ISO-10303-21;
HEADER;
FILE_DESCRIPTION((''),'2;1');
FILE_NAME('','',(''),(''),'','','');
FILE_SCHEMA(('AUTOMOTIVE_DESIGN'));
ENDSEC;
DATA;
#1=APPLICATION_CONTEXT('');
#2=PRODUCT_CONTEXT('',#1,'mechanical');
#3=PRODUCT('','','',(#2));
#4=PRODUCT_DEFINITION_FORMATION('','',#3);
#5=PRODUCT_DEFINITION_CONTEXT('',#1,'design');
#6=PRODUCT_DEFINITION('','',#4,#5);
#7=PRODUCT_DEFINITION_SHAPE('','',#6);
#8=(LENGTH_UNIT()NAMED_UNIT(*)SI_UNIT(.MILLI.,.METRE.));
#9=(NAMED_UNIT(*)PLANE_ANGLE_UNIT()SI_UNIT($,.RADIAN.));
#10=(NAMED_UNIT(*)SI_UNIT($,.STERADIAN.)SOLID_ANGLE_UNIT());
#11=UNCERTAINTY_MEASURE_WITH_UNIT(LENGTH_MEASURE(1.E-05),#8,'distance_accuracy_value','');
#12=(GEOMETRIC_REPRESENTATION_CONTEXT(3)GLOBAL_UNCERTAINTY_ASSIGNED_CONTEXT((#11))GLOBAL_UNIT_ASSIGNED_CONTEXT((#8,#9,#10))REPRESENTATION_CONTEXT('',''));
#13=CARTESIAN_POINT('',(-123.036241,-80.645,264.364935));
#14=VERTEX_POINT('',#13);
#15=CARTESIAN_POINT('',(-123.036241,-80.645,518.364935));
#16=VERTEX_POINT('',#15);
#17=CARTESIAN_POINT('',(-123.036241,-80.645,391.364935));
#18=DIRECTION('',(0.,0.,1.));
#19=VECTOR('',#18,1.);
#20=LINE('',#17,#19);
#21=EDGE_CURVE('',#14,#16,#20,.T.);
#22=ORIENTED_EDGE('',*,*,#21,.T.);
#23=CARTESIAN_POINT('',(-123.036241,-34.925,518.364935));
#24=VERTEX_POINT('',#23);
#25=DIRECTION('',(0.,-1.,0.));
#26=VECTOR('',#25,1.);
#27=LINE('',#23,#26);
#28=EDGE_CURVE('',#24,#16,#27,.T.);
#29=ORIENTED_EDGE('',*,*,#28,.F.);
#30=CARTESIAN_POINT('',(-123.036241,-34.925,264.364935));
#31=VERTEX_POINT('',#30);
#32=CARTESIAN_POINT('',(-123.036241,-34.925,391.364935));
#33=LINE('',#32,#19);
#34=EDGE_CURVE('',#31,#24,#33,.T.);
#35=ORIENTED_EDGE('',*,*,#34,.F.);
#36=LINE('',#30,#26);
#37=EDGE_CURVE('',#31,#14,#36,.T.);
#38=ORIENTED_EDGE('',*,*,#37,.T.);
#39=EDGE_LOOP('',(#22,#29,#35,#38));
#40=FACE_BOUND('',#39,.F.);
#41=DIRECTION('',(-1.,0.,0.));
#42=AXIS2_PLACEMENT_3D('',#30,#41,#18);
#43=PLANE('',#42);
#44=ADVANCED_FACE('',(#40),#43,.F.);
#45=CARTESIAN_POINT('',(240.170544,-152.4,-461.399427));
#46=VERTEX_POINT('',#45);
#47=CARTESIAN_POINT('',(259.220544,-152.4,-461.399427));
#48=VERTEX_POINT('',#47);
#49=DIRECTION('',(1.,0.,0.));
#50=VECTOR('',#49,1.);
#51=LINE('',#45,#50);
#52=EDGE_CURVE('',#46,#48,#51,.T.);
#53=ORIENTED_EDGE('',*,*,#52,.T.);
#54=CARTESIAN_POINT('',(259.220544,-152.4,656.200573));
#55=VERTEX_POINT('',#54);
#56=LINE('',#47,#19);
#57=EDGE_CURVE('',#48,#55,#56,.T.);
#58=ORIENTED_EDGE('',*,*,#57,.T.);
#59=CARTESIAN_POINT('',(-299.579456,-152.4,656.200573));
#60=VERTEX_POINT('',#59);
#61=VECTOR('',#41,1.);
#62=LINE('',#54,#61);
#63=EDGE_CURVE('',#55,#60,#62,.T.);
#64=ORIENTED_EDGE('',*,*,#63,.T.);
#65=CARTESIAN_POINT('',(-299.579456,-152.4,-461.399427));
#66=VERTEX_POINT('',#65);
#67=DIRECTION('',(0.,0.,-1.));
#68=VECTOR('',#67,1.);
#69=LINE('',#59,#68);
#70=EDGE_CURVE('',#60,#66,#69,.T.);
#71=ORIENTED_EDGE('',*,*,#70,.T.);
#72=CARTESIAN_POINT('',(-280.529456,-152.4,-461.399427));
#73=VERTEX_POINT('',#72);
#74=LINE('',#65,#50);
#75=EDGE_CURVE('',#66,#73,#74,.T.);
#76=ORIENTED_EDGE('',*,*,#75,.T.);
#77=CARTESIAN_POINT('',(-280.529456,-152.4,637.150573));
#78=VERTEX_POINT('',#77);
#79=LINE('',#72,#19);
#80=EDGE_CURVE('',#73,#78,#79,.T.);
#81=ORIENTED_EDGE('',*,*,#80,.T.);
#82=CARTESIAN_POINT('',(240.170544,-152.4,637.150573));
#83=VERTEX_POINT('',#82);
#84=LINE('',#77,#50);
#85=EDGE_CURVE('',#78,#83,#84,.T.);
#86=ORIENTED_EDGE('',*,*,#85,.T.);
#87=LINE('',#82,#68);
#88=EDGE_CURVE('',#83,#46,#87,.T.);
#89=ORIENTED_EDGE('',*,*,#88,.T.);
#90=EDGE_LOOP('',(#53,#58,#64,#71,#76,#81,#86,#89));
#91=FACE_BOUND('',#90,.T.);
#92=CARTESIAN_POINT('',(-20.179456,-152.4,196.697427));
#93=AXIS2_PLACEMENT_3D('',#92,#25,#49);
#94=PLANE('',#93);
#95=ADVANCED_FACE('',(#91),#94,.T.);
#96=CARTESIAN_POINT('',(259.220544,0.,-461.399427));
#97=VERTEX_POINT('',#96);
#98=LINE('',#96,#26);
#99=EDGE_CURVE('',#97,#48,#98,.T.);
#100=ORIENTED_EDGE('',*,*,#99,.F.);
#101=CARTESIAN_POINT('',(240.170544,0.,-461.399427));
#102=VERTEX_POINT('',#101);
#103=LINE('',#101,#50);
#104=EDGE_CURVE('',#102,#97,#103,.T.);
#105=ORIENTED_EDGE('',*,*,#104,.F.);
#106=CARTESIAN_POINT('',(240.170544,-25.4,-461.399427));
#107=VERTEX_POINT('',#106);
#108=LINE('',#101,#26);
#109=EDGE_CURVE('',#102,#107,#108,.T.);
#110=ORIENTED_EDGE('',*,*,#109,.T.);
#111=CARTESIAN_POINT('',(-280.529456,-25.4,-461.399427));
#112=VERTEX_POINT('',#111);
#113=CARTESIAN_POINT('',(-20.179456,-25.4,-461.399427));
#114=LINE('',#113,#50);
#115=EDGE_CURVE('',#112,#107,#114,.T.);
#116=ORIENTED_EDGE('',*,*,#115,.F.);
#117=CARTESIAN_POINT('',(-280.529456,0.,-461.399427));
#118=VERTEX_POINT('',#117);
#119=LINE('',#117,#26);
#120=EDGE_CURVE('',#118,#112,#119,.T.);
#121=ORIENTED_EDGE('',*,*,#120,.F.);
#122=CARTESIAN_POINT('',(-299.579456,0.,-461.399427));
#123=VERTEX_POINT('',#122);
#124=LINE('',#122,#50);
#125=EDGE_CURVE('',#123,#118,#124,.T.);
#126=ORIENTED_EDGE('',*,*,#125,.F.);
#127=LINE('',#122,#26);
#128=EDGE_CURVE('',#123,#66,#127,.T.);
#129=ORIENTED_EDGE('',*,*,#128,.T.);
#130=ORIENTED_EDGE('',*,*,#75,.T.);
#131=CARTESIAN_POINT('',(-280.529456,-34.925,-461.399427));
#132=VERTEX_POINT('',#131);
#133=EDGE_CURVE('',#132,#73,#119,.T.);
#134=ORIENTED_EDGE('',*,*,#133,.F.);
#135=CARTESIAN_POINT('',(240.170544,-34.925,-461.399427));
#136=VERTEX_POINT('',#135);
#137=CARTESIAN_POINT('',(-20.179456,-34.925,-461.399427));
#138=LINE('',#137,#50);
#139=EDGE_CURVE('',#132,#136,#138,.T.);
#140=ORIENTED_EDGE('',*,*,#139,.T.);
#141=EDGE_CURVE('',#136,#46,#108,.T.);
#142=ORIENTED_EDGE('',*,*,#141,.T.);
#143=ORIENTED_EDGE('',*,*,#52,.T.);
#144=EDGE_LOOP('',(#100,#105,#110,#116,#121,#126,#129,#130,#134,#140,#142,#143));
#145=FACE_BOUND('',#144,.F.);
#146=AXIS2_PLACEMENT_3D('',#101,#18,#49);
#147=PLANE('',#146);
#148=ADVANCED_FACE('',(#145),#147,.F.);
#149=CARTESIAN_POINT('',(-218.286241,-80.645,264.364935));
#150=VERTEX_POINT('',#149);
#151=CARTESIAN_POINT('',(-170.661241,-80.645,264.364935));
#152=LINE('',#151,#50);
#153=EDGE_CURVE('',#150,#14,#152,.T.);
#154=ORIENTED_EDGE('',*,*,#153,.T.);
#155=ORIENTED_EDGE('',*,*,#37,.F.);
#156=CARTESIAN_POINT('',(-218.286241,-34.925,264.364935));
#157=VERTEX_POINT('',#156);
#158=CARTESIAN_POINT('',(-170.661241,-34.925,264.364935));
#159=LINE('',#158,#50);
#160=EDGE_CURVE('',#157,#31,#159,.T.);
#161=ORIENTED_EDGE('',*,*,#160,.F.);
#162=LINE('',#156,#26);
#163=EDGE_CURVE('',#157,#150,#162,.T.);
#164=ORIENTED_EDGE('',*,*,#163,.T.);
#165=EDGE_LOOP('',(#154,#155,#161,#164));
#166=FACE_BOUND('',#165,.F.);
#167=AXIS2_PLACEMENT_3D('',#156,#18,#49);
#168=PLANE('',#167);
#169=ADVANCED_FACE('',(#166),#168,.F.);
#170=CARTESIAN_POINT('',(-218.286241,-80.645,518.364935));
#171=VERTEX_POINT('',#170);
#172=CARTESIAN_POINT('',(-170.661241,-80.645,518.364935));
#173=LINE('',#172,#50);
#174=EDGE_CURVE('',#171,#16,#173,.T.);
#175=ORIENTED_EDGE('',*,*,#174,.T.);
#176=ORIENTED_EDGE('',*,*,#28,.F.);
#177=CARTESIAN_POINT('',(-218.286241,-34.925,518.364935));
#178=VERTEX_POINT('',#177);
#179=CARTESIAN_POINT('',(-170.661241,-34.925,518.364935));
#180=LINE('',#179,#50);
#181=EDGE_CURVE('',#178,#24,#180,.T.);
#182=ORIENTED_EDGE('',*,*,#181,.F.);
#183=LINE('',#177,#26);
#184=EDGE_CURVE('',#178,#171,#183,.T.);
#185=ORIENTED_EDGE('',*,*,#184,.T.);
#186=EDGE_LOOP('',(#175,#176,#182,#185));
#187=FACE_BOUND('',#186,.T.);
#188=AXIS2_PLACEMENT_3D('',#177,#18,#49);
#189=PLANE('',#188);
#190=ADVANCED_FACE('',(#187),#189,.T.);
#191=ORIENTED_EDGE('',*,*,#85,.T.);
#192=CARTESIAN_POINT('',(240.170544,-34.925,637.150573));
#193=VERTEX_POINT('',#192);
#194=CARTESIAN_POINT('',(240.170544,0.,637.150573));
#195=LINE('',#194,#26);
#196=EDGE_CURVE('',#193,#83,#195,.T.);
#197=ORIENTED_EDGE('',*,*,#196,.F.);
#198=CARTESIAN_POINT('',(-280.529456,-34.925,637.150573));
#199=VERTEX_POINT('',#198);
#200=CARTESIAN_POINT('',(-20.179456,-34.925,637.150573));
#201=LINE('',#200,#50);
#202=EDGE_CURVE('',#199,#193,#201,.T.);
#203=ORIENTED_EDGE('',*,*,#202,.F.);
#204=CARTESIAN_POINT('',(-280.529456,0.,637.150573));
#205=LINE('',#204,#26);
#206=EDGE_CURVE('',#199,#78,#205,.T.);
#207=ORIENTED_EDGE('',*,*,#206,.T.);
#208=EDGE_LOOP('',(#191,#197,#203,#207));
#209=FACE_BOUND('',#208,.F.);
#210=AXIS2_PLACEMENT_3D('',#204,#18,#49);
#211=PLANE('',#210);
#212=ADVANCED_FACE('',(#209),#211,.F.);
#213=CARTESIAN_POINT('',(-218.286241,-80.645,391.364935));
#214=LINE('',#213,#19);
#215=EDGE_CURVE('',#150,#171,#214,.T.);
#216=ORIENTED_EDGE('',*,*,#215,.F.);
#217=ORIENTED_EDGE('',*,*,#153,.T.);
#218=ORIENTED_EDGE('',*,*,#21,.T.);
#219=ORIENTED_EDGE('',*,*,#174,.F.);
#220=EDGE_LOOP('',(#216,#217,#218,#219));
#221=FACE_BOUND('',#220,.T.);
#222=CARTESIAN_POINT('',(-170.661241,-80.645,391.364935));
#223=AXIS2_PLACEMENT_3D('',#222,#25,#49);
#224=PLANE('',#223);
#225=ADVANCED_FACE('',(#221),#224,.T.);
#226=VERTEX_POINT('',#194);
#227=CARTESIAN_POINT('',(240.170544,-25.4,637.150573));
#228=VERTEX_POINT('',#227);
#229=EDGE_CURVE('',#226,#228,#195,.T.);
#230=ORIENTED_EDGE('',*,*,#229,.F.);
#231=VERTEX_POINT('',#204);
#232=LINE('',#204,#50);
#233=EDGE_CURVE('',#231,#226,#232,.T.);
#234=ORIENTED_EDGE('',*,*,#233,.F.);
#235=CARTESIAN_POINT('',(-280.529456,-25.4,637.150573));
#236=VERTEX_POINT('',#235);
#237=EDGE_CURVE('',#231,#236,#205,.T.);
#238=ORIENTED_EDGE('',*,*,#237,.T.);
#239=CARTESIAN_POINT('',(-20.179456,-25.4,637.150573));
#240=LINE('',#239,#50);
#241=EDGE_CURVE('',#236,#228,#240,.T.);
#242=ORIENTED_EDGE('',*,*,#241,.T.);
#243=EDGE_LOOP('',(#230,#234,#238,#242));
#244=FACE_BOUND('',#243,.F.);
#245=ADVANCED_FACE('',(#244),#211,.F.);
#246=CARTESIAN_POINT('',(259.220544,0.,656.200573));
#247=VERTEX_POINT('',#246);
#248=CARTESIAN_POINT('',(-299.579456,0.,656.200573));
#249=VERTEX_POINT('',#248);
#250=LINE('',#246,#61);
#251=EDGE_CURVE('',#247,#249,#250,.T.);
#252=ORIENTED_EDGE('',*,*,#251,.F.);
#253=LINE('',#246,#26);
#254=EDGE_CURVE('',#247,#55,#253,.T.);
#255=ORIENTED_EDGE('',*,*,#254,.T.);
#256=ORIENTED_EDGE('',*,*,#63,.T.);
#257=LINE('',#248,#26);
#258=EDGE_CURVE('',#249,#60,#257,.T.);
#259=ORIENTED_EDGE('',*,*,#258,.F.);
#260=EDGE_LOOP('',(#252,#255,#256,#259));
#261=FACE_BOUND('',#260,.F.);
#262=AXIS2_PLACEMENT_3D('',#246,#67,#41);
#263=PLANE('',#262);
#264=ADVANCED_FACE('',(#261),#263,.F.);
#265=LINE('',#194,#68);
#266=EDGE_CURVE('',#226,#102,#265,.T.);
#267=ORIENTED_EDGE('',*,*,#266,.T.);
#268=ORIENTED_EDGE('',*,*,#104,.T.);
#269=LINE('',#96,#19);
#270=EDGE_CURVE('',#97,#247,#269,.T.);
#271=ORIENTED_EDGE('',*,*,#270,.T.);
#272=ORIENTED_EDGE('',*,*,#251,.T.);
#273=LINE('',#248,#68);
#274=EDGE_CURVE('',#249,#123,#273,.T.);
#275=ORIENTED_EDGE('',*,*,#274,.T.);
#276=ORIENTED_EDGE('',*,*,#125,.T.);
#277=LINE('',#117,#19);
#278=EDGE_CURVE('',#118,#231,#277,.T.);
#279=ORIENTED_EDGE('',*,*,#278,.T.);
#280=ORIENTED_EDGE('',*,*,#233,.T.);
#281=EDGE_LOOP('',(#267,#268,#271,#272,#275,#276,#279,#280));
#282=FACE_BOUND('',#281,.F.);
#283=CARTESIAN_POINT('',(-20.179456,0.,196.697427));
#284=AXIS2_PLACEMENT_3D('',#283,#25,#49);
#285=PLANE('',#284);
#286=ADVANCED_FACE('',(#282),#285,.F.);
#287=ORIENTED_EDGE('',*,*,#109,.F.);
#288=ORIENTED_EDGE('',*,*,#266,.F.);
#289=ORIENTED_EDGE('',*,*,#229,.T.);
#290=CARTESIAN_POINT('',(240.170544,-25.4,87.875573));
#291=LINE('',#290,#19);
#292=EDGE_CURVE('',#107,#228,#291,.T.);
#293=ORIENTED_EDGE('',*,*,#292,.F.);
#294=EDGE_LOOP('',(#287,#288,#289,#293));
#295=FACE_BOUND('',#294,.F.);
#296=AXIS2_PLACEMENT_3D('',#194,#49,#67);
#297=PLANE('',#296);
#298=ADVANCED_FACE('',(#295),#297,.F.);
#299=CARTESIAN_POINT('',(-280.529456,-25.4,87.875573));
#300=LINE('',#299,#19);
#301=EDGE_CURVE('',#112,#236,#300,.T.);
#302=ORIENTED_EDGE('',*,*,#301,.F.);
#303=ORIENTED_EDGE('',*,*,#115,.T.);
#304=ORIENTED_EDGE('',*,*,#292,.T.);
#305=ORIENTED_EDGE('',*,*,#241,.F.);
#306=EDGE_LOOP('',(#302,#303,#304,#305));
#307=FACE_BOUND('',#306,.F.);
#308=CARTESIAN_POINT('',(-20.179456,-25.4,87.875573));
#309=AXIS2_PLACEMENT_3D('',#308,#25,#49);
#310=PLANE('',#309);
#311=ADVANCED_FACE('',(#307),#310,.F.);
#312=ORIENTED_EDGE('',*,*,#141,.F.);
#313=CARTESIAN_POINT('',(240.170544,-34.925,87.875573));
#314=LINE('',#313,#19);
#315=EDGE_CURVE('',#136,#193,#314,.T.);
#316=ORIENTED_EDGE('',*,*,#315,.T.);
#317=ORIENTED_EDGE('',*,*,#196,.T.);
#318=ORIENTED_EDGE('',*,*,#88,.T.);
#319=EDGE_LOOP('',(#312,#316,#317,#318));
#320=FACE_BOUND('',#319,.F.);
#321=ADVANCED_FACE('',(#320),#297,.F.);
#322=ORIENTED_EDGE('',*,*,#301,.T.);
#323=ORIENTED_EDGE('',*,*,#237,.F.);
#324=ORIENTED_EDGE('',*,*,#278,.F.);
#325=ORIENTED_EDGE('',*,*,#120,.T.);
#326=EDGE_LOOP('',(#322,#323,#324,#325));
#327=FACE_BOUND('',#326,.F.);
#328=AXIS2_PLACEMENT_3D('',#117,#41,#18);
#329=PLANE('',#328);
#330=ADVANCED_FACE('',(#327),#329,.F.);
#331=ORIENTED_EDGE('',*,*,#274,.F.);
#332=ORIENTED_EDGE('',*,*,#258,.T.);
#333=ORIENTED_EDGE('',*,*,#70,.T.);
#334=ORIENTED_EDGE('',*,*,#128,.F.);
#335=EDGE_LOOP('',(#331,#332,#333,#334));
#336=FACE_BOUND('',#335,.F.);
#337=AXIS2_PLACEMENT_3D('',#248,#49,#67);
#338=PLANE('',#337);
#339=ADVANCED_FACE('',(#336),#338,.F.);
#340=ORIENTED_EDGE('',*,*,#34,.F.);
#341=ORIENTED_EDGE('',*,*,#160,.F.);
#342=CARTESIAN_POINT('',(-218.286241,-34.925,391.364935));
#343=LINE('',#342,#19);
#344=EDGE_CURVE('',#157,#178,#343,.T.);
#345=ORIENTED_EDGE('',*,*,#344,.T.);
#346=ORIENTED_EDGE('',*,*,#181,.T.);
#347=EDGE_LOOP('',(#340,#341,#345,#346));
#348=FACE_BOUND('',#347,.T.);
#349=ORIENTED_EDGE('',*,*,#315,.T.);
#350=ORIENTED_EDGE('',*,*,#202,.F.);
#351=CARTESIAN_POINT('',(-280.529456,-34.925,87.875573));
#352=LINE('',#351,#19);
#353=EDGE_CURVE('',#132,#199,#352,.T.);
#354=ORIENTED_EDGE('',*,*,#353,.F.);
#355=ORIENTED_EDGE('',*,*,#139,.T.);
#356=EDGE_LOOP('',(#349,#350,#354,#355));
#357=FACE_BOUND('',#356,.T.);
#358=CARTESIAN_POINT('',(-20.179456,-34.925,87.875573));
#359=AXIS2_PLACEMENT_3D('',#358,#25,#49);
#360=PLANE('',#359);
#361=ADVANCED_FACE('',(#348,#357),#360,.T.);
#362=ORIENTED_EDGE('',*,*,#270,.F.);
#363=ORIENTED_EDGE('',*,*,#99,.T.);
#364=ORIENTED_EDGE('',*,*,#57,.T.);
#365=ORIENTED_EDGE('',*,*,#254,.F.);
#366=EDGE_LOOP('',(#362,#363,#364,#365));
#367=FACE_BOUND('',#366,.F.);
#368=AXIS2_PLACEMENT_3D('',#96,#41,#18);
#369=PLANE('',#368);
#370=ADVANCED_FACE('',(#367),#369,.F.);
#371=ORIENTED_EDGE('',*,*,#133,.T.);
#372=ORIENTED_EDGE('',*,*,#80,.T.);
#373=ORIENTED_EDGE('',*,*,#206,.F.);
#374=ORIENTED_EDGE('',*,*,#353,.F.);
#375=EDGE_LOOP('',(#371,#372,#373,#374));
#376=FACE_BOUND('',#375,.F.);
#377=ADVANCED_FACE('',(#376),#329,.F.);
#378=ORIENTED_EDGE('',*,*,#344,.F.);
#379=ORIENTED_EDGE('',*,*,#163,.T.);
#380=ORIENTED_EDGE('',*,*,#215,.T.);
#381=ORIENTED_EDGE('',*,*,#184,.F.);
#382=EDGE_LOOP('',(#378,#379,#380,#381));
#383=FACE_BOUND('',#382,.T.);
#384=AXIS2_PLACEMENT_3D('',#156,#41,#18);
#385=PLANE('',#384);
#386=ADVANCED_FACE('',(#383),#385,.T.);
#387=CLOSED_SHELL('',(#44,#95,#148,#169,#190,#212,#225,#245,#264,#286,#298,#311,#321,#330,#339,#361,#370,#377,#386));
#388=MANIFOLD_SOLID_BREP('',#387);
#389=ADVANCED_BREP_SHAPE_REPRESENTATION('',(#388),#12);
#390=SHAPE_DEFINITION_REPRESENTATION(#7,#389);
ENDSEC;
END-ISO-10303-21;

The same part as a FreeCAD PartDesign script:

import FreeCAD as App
import Part
import Sketcher

V = App.Vector
Q = App.Units.Quantity


def add_polygon(sketch, points):
    """Adds a closed chain of lines whose ends are joined by coincident constraints."""
    first, n = sketch.GeometryCount, len(points)
    for a, b in zip(points, points[1:] + points[:1]):
        sketch.addGeometry(Part.LineSegment(App.Vector(*a, 0), App.Vector(*b, 0)), False)
    for i in range(n):
        sketch.addConstraint(Sketcher.Constraint("Coincident", first + i, 2, first + (i + 1) % n, 1))

doc = App.newDocument("Part")
body = doc.addObject("PartDesign::Body", "Body")

# Sketch on XZ plane
sketch1 = body.newObject("Sketcher::SketchObject", "Sketch")
sketch1.AttachmentSupport = (doc.getObject("XZ_Plane"), [""])
sketch1.MapMode = "FlatFace"
add_polygon(sketch1, [(259.220544, 656.200573), (-299.579456, 656.200573), (-299.579456, -461.399427), (-280.529456, -461.399427), (-280.529456, 637.150573), (240.170544, 637.150573), (240.170544, -461.399427), (259.220544, -461.399427)])  # lines 0-7
sketch1.addConstraint(Sketcher.Constraint("Horizontal", 0))
sketch1.addConstraint(Sketcher.Constraint("Vertical", 1))
sketch1.addConstraint(Sketcher.Constraint("Horizontal", 2))
sketch1.addConstraint(Sketcher.Constraint("Vertical", 3))
sketch1.addConstraint(Sketcher.Constraint("Horizontal", 4))
sketch1.addConstraint(Sketcher.Constraint("Vertical", 5))
sketch1.addConstraint(Sketcher.Constraint("Horizontal", 6))
sketch1.addConstraint(Sketcher.Constraint("Vertical", 7))
sketch1.addConstraint(Sketcher.Constraint("Horizontal", 2, 2, 5, 2))
sketch1.addConstraint(Sketcher.Constraint("Equal", 2, 6))
sketch1.addConstraint(Sketcher.Constraint("DistanceX", 0, 2, 0, 1, Q("22 in")))
sketch1.addConstraint(Sketcher.Constraint("DistanceY", 1, 2, 1, 1, Q("44 in")))
sketch1.addConstraint(Sketcher.Constraint("DistanceX", 4, 1, 4, 2, Q("20.5 in")))
sketch1.addConstraint(Sketcher.Constraint("DistanceY", 3, 1, 3, 2, Q("43.25 in")))
sketch1.addConstraint(Sketcher.Constraint("DistanceX", 0, 2, -1, 1, 299.579456))
sketch1.addConstraint(Sketcher.Constraint("DistanceY", -1, 1, 0, 2, 656.200573))
pad1 = body.newObject("PartDesign::Pad", "Pad")
pad1.Profile = sketch1
pad1.Length = Q("6 in")

# Sketch on XZ plane
sketch2 = body.newObject("Sketcher::SketchObject", "Sketch001")
sketch2.AttachmentSupport = (doc.getObject("XZ_Plane"), [""])
sketch2.MapMode = "FlatFace"
sketch2.AttachmentOffset = App.Placement(V(0, 0, 1 * 25.4), App.Rotation())
add_polygon(sketch2, [(-280.529456, 637.150573), (-280.529456, -461.399427), (240.170544, -461.399427), (240.170544, 637.150573)])  # lines 0-3
sketch2.addConstraint(Sketcher.Constraint("Vertical", 0))
sketch2.addConstraint(Sketcher.Constraint("Horizontal", 1))
sketch2.addConstraint(Sketcher.Constraint("Vertical", 2))
sketch2.addConstraint(Sketcher.Constraint("Horizontal", 3))
sketch2.addConstraint(Sketcher.Constraint("DistanceX", 1, 1, 1, 2, Q("20.5 in")))
sketch2.addConstraint(Sketcher.Constraint("DistanceY", 0, 2, 0, 1, Q("43.25 in")))
sketch2.addConstraint(Sketcher.Constraint("DistanceX", 0, 2, -1, 1, 280.529456))
sketch2.addConstraint(Sketcher.Constraint("DistanceY", 0, 2, -1, 1, 461.399427))
pad2 = body.newObject("PartDesign::Pad", "Pad001")
pad2.Profile = sketch2
pad2.Length = Q("0.375 in")

# Sketch on XZ plane
sketch3 = body.newObject("Sketcher::SketchObject", "Sketch002")
sketch3.AttachmentSupport = (doc.getObject("XZ_Plane"), [""])
sketch3.MapMode = "FlatFace"
sketch3.AttachmentOffset = App.Placement(V(0, 0, 1.375 * 25.4), App.Rotation())
add_polygon(sketch3, [(-218.286241, 518.364935), (-218.286241, 264.364935), (-123.036241, 264.364935), (-123.036241, 518.364935)])  # lines 0-3
sketch3.addConstraint(Sketcher.Constraint("Vertical", 0))
sketch3.addConstraint(Sketcher.Constraint("Horizontal", 1))
sketch3.addConstraint(Sketcher.Constraint("Vertical", 2))
sketch3.addConstraint(Sketcher.Constraint("Horizontal", 3))
sketch3.addConstraint(Sketcher.Constraint("DistanceY", 0, 2, 0, 1, Q("10 in")))
sketch3.addConstraint(Sketcher.Constraint("DistanceX", 1, 1, 1, 2, Q("3.75 in")))
sketch3.addConstraint(Sketcher.Constraint("DistanceX", 0, 2, -1, 1, 218.286241))
sketch3.addConstraint(Sketcher.Constraint("DistanceY", -1, 1, 0, 2, 264.364935))
pad3 = body.newObject("PartDesign::Pad", "Pad002")
pad3.Profile = sketch3
pad3.Length = Q("1.8 in")

doc.recompute()
